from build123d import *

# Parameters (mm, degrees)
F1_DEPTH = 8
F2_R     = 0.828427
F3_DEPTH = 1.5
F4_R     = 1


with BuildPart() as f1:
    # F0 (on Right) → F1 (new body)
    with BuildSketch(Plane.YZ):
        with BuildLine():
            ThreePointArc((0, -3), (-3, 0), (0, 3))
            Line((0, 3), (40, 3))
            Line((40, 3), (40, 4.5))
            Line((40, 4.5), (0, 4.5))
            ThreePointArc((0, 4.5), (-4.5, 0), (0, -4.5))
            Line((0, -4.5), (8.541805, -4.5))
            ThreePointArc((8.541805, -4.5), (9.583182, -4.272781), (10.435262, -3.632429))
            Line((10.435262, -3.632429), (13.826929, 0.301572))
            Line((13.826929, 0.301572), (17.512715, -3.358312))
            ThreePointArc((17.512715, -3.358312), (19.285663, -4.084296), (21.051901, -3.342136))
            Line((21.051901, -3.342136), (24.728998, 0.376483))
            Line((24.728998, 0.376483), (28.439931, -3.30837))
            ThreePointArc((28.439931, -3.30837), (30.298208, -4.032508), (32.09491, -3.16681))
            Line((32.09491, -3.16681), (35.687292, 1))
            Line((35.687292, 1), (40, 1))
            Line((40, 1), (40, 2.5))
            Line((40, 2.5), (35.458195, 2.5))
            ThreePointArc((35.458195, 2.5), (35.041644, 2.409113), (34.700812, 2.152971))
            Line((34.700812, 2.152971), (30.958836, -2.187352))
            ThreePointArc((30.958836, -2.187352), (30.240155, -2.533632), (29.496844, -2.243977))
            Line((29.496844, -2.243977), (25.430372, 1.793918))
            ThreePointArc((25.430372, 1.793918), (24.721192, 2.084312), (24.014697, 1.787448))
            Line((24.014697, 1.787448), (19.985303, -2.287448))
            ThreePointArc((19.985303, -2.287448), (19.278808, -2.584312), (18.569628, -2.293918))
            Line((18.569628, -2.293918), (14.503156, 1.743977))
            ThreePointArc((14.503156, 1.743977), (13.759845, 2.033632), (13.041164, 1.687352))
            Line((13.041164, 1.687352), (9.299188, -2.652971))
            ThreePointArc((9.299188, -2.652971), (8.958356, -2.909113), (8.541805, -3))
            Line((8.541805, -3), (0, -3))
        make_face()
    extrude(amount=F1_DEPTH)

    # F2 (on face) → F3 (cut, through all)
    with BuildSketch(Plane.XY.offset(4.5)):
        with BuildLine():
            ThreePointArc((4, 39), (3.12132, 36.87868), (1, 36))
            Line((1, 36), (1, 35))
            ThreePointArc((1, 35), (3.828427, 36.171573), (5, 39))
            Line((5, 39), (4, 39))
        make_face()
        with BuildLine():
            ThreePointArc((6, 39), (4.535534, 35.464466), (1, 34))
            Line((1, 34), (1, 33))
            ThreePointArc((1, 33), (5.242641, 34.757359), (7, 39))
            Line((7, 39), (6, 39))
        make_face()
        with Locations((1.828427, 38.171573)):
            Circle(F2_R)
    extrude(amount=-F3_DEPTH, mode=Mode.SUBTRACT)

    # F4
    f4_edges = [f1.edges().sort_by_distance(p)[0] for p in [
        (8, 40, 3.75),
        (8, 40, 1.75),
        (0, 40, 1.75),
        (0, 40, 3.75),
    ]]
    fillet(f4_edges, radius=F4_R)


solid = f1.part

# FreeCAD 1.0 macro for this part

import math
import FreeCAD as App
import Part
import Sketcher
Q = App.Units.Quantity


def edges_at(feature, points):
    """Names of the edges that pass closest to the given points."""
    edges = feature.Shape.Edges
    near = lambda p: min(range(len(edges)), key=lambda i: edges[i].distToShape(Part.Vertex(*p))[0])
    return sorted({f"Edge{near(p) + 1}" for p in points})

doc = App.newDocument("Part")
params = doc.addObject("Spreadsheet::Sheet", "Params")
for row, (alias, value) in enumerate([
    ("sketch1_radius", "3 mm"),
    ("sketch1_radius2", "1 mm"),
    ("sketch1_radius3", "1 mm"),
    ("sketch1_radius4", "1 mm"),
    ("sketch1_radius5", "1 mm"),
    ("pad1_length", "8 mm"),
    ("sketch2_radius", "3.000001 mm"),
    ("sketch2_radius2", "4 mm"),
    ("sketch2_radius3", "5 mm"),
    ("pocket1_length", "1.5 mm"),
    ("fillet_radius", "1 mm"),
], start=1):
    params.set(f"A{row}", alias)
    params.set(f"B{row}", "=" + value)
    params.setAlias(f"B{row}", alias)

body = doc.addObject("PartDesign::Body", "Body")

# Sketch on YZ plane
sketch1 = doc.addObject("Sketcher::SketchObject", "Sketch")
body.addObject(sketch1)
sketch1.AttachmentSupport = (doc.YZ_Plane, [""])
sketch1.MapMode = "FlatFace"
sketch1.addGeometry([
    Part.ArcOfCircle(Part.Circle(App.Vector(0, 0, 0), App.Vector(0, 0, 1), 3), math.radians(90), math.radians(270)),  # 0
    Part.LineSegment(App.Vector(0, 3, 0), App.Vector(40, 3, 0)),  # 1
    Part.LineSegment(App.Vector(40, 3, 0), App.Vector(40, 4.5, 0)),  # 2
    Part.LineSegment(App.Vector(40, 4.5, 0), App.Vector(0, 4.5, 0)),  # 3
    Part.ArcOfCircle(Part.Circle(App.Vector(0, 0, 0), App.Vector(0, 0, 1), 4.5), math.radians(90), math.radians(270)),  # 4
    Part.LineSegment(App.Vector(0, -4.5, 0), App.Vector(8.541805, -4.5, 0)),  # 5
    Part.ArcOfCircle(Part.Circle(App.Vector(8.541804, -1.999995, 0), App.Vector(0, 0, 1), 2.500005), math.radians(-89.999969), math.radians(-40.766079)),  # 6
    Part.LineSegment(App.Vector(10.435262, -3.632429, 0), App.Vector(13.826929, 0.301572, 0)),  # 7
    Part.LineSegment(App.Vector(13.826929, 0.301572, 0), App.Vector(17.512715, -3.358312, 0)),  # 8
    Part.ArcOfCircle(Part.Circle(App.Vector(19.274237, -1.584323, 0), App.Vector(0, 0, 1), 2.5), math.radians(-134.797953), math.radians(-44.678305)),  # 9
    Part.LineSegment(App.Vector(21.051901, -3.342136, 0), App.Vector(24.728998, 0.376483, 0)),  # 10
    Part.LineSegment(App.Vector(24.728998, 0.376483, 0), App.Vector(28.439931, -3.30837, 0)),  # 11
    Part.ArcOfCircle(Part.Circle(App.Vector(30.201454, -1.534381, 0), App.Vector(0, 0, 1), 2.5), math.radians(-134.797976), math.radians(-40.766027)),  # 12
    Part.LineSegment(App.Vector(32.09491, -3.16681, 0), App.Vector(35.687292, 1, 0)),  # 13
    Part.LineSegment(App.Vector(35.687292, 1, 0), App.Vector(40, 1, 0)),  # 14
    Part.LineSegment(App.Vector(40, 1, 0), App.Vector(40, 2.5, 0)),  # 15
    Part.LineSegment(App.Vector(40, 2.5, 0), App.Vector(35.458195, 2.5, 0)),  # 16
    Part.ArcOfCircle(Part.Circle(App.Vector(35.458192, 1.500006, 0), App.Vector(0, 0, 1), 0.999994), math.radians(89.999849), math.radians(139.234167)),  # 17
    Part.LineSegment(App.Vector(34.700812, 2.152971, 0), App.Vector(30.958836, -2.187352, 0)),  # 18
    Part.ArcOfCircle(Part.Circle(App.Vector(30.201453, -1.534381, 0), App.Vector(0, 0, 1), 1), math.radians(-134.797964), math.radians(-40.765962)),  # 19
    Part.LineSegment(App.Vector(29.496844, -2.243977, 0), App.Vector(25.430372, 1.793918, 0)),  # 20
    Part.ArcOfCircle(Part.Circle(App.Vector(24.725763, 1.084322, 0), App.Vector(0, 0, 1), 1), math.radians(45.20202), math.radians(135.321689)),  # 21
    Part.LineSegment(App.Vector(24.014697, 1.787448, 0), App.Vector(19.985303, -2.287448, 0)),  # 22
    Part.ArcOfCircle(Part.Circle(App.Vector(19.274237, -1.584322, 0), App.Vector(0, 0, 1), 1), math.radians(-134.79798), math.radians(-44.678311)),  # 23
    Part.LineSegment(App.Vector(18.569628, -2.293918, 0), App.Vector(14.503156, 1.743977, 0)),  # 24
    Part.ArcOfCircle(Part.Circle(App.Vector(13.798547, 1.034381, 0), App.Vector(0, 0, 1), 1), math.radians(45.202036), math.radians(139.234038)),  # 25
    Part.LineSegment(App.Vector(13.041164, 1.687352, 0), App.Vector(9.299188, -2.652971, 0)),  # 26
    Part.ArcOfCircle(Part.Circle(App.Vector(8.541808, -2.000006, 0), App.Vector(0, 0, 1), 0.999994), math.radians(-90.000151), math.radians(-40.765833)),  # 27
    Part.LineSegment(App.Vector(8.541805, -3, 0), App.Vector(0, -3, 0)),  # 28
], False)
sketch1.addConstraint([
    Sketcher.Constraint("Coincident", 0, 1, 1, 1),
    Sketcher.Constraint("Coincident", 1, 2, 2, 1),
    Sketcher.Constraint("Coincident", 2, 2, 3, 1),
    Sketcher.Constraint("Coincident", 3, 2, 4, 1),
    Sketcher.Constraint("Coincident", 4, 2, 5, 1),
    Sketcher.Constraint("Coincident", 5, 2, 6, 1),
    Sketcher.Constraint("Coincident", 6, 2, 7, 1),
    Sketcher.Constraint("Coincident", 7, 2, 8, 1),
    Sketcher.Constraint("Coincident", 8, 2, 9, 1),
    Sketcher.Constraint("Coincident", 9, 2, 10, 1),
    Sketcher.Constraint("Coincident", 10, 2, 11, 1),
    Sketcher.Constraint("Coincident", 11, 2, 12, 1),
    Sketcher.Constraint("Coincident", 12, 2, 13, 1),
    Sketcher.Constraint("Coincident", 13, 2, 14, 1),
    Sketcher.Constraint("Coincident", 14, 2, 15, 1),
    Sketcher.Constraint("Coincident", 15, 2, 16, 1),
    Sketcher.Constraint("Coincident", 16, 2, 17, 1),
    Sketcher.Constraint("Coincident", 17, 2, 18, 1),
    Sketcher.Constraint("Coincident", 18, 2, 19, 2),
    Sketcher.Constraint("Coincident", 19, 1, 20, 1),
    Sketcher.Constraint("Coincident", 20, 2, 21, 1),
    Sketcher.Constraint("Coincident", 21, 2, 22, 1),
    Sketcher.Constraint("Coincident", 22, 2, 23, 2),
    Sketcher.Constraint("Coincident", 23, 1, 24, 1),
    Sketcher.Constraint("Coincident", 24, 2, 25, 1),
    Sketcher.Constraint("Coincident", 25, 2, 26, 1),
    Sketcher.Constraint("Coincident", 26, 2, 27, 2),
    Sketcher.Constraint("Coincident", 27, 1, 28, 1),
    Sketcher.Constraint("Coincident", 28, 2, 0, 2),
    Sketcher.Constraint("Horizontal", 1),
    Sketcher.Constraint("Vertical", 2),
    Sketcher.Constraint("Horizontal", 3),
    Sketcher.Constraint("Horizontal", 5),
    Sketcher.Constraint("Horizontal", 14),
    Sketcher.Constraint("Vertical", 15),
    Sketcher.Constraint("Horizontal", 16),
    Sketcher.Constraint("Horizontal", 28),
    Sketcher.Constraint("Coincident", 0, 3, -1, 1),
    Sketcher.Constraint("Coincident", 4, 3, -1, 1),
    Sketcher.Constraint("Coincident", 19, 3, 12, 3),
    Sketcher.Constraint("Coincident", 23, 3, 9, 3),
    Sketcher.Constraint("PointOnObject", 0, 1, -2),
    Sketcher.Constraint("PointOnObject", 3, 2, -2),
    Sketcher.Constraint("PointOnObject", 4, 2, -2),
    Sketcher.Constraint("PointOnObject", 28, 2, -2),
    Sketcher.Constraint("Radius", 0, Q("3 mm")),
    Sketcher.Constraint("Radius", 19, Q("1 mm")),
    Sketcher.Constraint("Radius", 21, Q("1 mm")),
    Sketcher.Constraint("Radius", 23, Q("1 mm")),
    Sketcher.Constraint("Radius", 25, Q("1 mm")),
    Sketcher.Constraint("Radius", 4, Q("4.5 mm")),
    Sketcher.Constraint("Radius", 9, Q("2.5 mm")),
    Sketcher.Constraint("Radius", 12, Q("2.5 mm")),
    Sketcher.Constraint("DistanceX", 1, 1, 1, 2, Q("40 mm")),
    Sketcher.Constraint("DistanceY", 15, 1, 15, 2, Q("1.5 mm")),
    Sketcher.Constraint("DistanceY", -1, 1, 13, 2, Q("1 mm")),
    Sketcher.Constraint("DistanceX", -1, 1, 14, 2, Q("40 mm")),
    Sketcher.Constraint("DistanceY", 6, 3, 17, 3, Q("3.5 mm")),
    Sketcher.Constraint("DistanceX", -1, 1, 10, 2, Q("24.728998 mm")),
    Sketcher.Constraint("Radius", 6, Q("2.500005 mm")),
    Sketcher.Constraint("Radius", 27, Q("0.999994 mm")),
    Sketcher.Constraint("DistanceY", 6, 2, 7, 2, Q("3.934001 mm")),
    Sketcher.Constraint("DistanceX", 14, 1, 14, 2, Q("4.312708 mm")),
    Sketcher.Constraint("DistanceX", -1, 1, 9, 2, Q("21.051901 mm")),
    Sketcher.Constraint("DistanceX", 17, 3, 13, 2, Q("0.2291 mm")),
    Sketcher.Constraint("DistanceY", 19, 3, 20, 2, Q("3.328299 mm")),
    Sketcher.Constraint("DistanceX", 21, 2, 10, 2, Q("0.714301 mm")),
    Sketcher.Constraint("DistanceY", 9, 3, 24, 2, Q("3.3283 mm")),
    Sketcher.Constraint("Distance", 13, Q("5.501592 mm")),
    Sketcher.Constraint("Distance", 18, Q("5.730688 mm")),
    Sketcher.Constraint("Distance", 20, Q("5.730688 mm")),
    Sketcher.Constraint("Distance", 22, Q("5.730689 mm")),
    Sketcher.Constraint("Distance", 24, Q("5.730688 mm")),
    Sketcher.Constraint("Distance", 26, Q("5.730688 mm")),
    Sketcher.Constraint("DistanceX", 5, 1, 5, 2, Q("8.541805 mm")),
    Sketcher.Constraint("DistanceX", 16, 2, 16, 1, Q("4.541805 mm")),
    Sketcher.Constraint("DistanceX", 28, 2, 28, 1, Q("8.541805 mm")),
    Sketcher.Constraint("DistanceY", 12, 3, -1, 1, Q("1.534381 mm")),
    Sketcher.Constraint("DistanceY", -1, 1, 25, 3, Q("1.034381 mm")),
    Sketcher.Constraint("DistanceY", 6, 2, -1, 1, Q("3.632429 mm")),
    Sketcher.Constraint("DistanceX", -1, 1, 7, 2, Q("13.826929 mm")),
    Sketcher.Constraint("DistanceX", -1, 1, 11, 2, Q("28.439931 mm")),
    Sketcher.Constraint("DistanceY", 11, 2, -1, 1, Q("3.30837 mm")),
    Sketcher.Constraint("DistanceY", -1, 1, 17, 2, Q("2.152971 mm")),
    Sketcher.Constraint("DistanceX", -1, 1, 20, 2, Q("25.430372 mm")),
    Sketcher.Constraint("DistanceY", -1, 1, 21, 2, Q("1.787448 mm")),
    Sketcher.Constraint("DistanceX", -1, 1, 23, 1, Q("18.569628 mm")),
    Sketcher.Constraint("DistanceY", 26, 2, -1, 1, Q("2.652971 mm")),
    Sketcher.Constraint("DistanceY", 9, 3, 12, 3, Q("0.049942 mm")),
    Sketcher.Constraint("DistanceX", 6, 3, 12, 3, Q("21.65965 mm")),
    Sketcher.Constraint("DistanceX", 25, 3, 9, 3, Q("5.47569 mm")),
    Sketcher.Constraint("DistanceX", 27, 3, 25, 3, Q("5.256739 mm")),
    Sketcher.Constraint("DistanceX", 8, 2, 9, 3, Q("1.761522 mm")),
    Sketcher.Constraint("DistanceY", 10, 2, 21, 3, Q("0.707839 mm")),
])
sketch1.setExpression("Constraints[45]", "Params.sketch1_radius")
sketch1.setExpression("Constraints[46]", "Params.sketch1_radius2")
sketch1.setExpression("Constraints[47]", "Params.sketch1_radius3")
sketch1.setExpression("Constraints[48]", "Params.sketch1_radius4")
sketch1.setExpression("Constraints[49]", "Params.sketch1_radius5")
pad1 = doc.addObject("PartDesign::Pad", "Pad")
body.addObject(pad1)
pad1.Profile = sketch1
pad1.setExpression("Length", "Params.pad1_length")

# Sketch on XY plane
sketch2 = doc.addObject("Sketcher::SketchObject", "Sketch001")
body.addObject(sketch2)
sketch2.AttachmentSupport = (doc.XY_Plane, [""])
sketch2.MapMode = "FlatFace"
sketch2.AttachmentOffset = App.Placement(App.Vector(0, 0, 4.5), App.Rotation())
sketch2.addGeometry([
    Part.ArcOfCircle(Part.Circle(App.Vector(1, 39, 0), App.Vector(0, 0, 1), 3), math.radians(-90), math.radians(0)),  # 0
    Part.LineSegment(App.Vector(1, 36, 0), App.Vector(1, 35, 0)),  # 1
    Part.ArcOfCircle(Part.Circle(App.Vector(1, 39, 0), App.Vector(0, 0, 1), 4), math.radians(-90), math.radians(0)),  # 2
    Part.LineSegment(App.Vector(5, 39, 0), App.Vector(4, 39, 0)),  # 3
    Part.ArcOfCircle(Part.Circle(App.Vector(1, 39, 0), App.Vector(0, 0, 1), 5), math.radians(-90), math.radians(0)),  # 4
    Part.LineSegment(App.Vector(1, 34, 0), App.Vector(1, 33, 0)),  # 5
    Part.ArcOfCircle(Part.Circle(App.Vector(1, 39, 0), App.Vector(0, 0, 1), 6), math.radians(-90), math.radians(0)),  # 6
    Part.LineSegment(App.Vector(7, 39, 0), App.Vector(6, 39, 0)),  # 7
    Part.Circle(App.Vector(1.8, 38.2, 0), App.Vector(0, 0, 1), 0.8),  # 8
], False)
sketch2.addConstraint([
    Sketcher.Constraint("Coincident", 0, 1, 1, 1),
    Sketcher.Constraint("Coincident", 1, 2, 2, 1),
    Sketcher.Constraint("Coincident", 2, 2, 3, 1),
    Sketcher.Constraint("Coincident", 3, 2, 0, 2),
    Sketcher.Constraint("Coincident", 4, 1, 5, 1),
    Sketcher.Constraint("Coincident", 5, 2, 6, 1),
    Sketcher.Constraint("Coincident", 6, 2, 7, 1),
    Sketcher.Constraint("Coincident", 7, 2, 4, 2),
    Sketcher.Constraint("Vertical", 1),
    Sketcher.Constraint("Horizontal", 3),
    Sketcher.Constraint("Vertical", 5),
    Sketcher.Constraint("Horizontal", 7),
    Sketcher.Constraint("Coincident", 2, 3, 0, 3),
    Sketcher.Constraint("Coincident", 4, 3, 0, 3),
    Sketcher.Constraint("Coincident", 6, 3, 0, 3),
    Sketcher.Constraint("Horizontal", 6, 3, 2, 2),
    Sketcher.Constraint("Horizontal", 3, 2, 6, 2),
    Sketcher.Constraint("Vertical", 6, 3, 0, 1),
    Sketcher.Constraint("Vertical", 1, 2, 4, 1),
    Sketcher.Constraint("Equal", 3, 7),
    Sketcher.Constraint("Radius", 0, Q("3.000001 mm")),
    Sketcher.Constraint("Radius", 2, Q("4 mm")),
    Sketcher.Constraint("Radius", 4, Q("5 mm")),
    Sketcher.Constraint("DistanceX", -1, 1, 0, 3, Q("0.999999 mm")),
    Sketcher.Constraint("DistanceY", -1, 1, 0, 3, Q("39.000001 mm")),
    Sketcher.Constraint("Diameter", 8, Q("1.656854 mm")),
    Sketcher.Constraint("DistanceX", 0, 3, 8, 3, Q("0.828428 mm")),
    Sketcher.Constraint("DistanceY", 8, 3, 0, 3, Q("0.828428 mm")),
])
sketch2.setExpression("Constraints[20]", "Params.sketch2_radius")
sketch2.setExpression("Constraints[21]", "Params.sketch2_radius2")
sketch2.setExpression("Constraints[22]", "Params.sketch2_radius3")
pocket1 = doc.addObject("PartDesign::Pocket", "Pocket")
body.addObject(pocket1)
pocket1.Profile = sketch2
pocket1.setExpression("Length", "Params.pocket1_length")
doc.recompute()

fillet = doc.addObject("PartDesign::Fillet", "Fillet")
body.addObject(fillet)
fillet.Base = (pocket1, edges_at(pocket1, [
    (8, 40, 3.75),
    (8, 40, 1.75),
    (0, 40, 1.75),
    (0, 40, 3.75),
]))
fillet.setExpression("Radius", "Params.fillet_radius")

doc.recompute()
